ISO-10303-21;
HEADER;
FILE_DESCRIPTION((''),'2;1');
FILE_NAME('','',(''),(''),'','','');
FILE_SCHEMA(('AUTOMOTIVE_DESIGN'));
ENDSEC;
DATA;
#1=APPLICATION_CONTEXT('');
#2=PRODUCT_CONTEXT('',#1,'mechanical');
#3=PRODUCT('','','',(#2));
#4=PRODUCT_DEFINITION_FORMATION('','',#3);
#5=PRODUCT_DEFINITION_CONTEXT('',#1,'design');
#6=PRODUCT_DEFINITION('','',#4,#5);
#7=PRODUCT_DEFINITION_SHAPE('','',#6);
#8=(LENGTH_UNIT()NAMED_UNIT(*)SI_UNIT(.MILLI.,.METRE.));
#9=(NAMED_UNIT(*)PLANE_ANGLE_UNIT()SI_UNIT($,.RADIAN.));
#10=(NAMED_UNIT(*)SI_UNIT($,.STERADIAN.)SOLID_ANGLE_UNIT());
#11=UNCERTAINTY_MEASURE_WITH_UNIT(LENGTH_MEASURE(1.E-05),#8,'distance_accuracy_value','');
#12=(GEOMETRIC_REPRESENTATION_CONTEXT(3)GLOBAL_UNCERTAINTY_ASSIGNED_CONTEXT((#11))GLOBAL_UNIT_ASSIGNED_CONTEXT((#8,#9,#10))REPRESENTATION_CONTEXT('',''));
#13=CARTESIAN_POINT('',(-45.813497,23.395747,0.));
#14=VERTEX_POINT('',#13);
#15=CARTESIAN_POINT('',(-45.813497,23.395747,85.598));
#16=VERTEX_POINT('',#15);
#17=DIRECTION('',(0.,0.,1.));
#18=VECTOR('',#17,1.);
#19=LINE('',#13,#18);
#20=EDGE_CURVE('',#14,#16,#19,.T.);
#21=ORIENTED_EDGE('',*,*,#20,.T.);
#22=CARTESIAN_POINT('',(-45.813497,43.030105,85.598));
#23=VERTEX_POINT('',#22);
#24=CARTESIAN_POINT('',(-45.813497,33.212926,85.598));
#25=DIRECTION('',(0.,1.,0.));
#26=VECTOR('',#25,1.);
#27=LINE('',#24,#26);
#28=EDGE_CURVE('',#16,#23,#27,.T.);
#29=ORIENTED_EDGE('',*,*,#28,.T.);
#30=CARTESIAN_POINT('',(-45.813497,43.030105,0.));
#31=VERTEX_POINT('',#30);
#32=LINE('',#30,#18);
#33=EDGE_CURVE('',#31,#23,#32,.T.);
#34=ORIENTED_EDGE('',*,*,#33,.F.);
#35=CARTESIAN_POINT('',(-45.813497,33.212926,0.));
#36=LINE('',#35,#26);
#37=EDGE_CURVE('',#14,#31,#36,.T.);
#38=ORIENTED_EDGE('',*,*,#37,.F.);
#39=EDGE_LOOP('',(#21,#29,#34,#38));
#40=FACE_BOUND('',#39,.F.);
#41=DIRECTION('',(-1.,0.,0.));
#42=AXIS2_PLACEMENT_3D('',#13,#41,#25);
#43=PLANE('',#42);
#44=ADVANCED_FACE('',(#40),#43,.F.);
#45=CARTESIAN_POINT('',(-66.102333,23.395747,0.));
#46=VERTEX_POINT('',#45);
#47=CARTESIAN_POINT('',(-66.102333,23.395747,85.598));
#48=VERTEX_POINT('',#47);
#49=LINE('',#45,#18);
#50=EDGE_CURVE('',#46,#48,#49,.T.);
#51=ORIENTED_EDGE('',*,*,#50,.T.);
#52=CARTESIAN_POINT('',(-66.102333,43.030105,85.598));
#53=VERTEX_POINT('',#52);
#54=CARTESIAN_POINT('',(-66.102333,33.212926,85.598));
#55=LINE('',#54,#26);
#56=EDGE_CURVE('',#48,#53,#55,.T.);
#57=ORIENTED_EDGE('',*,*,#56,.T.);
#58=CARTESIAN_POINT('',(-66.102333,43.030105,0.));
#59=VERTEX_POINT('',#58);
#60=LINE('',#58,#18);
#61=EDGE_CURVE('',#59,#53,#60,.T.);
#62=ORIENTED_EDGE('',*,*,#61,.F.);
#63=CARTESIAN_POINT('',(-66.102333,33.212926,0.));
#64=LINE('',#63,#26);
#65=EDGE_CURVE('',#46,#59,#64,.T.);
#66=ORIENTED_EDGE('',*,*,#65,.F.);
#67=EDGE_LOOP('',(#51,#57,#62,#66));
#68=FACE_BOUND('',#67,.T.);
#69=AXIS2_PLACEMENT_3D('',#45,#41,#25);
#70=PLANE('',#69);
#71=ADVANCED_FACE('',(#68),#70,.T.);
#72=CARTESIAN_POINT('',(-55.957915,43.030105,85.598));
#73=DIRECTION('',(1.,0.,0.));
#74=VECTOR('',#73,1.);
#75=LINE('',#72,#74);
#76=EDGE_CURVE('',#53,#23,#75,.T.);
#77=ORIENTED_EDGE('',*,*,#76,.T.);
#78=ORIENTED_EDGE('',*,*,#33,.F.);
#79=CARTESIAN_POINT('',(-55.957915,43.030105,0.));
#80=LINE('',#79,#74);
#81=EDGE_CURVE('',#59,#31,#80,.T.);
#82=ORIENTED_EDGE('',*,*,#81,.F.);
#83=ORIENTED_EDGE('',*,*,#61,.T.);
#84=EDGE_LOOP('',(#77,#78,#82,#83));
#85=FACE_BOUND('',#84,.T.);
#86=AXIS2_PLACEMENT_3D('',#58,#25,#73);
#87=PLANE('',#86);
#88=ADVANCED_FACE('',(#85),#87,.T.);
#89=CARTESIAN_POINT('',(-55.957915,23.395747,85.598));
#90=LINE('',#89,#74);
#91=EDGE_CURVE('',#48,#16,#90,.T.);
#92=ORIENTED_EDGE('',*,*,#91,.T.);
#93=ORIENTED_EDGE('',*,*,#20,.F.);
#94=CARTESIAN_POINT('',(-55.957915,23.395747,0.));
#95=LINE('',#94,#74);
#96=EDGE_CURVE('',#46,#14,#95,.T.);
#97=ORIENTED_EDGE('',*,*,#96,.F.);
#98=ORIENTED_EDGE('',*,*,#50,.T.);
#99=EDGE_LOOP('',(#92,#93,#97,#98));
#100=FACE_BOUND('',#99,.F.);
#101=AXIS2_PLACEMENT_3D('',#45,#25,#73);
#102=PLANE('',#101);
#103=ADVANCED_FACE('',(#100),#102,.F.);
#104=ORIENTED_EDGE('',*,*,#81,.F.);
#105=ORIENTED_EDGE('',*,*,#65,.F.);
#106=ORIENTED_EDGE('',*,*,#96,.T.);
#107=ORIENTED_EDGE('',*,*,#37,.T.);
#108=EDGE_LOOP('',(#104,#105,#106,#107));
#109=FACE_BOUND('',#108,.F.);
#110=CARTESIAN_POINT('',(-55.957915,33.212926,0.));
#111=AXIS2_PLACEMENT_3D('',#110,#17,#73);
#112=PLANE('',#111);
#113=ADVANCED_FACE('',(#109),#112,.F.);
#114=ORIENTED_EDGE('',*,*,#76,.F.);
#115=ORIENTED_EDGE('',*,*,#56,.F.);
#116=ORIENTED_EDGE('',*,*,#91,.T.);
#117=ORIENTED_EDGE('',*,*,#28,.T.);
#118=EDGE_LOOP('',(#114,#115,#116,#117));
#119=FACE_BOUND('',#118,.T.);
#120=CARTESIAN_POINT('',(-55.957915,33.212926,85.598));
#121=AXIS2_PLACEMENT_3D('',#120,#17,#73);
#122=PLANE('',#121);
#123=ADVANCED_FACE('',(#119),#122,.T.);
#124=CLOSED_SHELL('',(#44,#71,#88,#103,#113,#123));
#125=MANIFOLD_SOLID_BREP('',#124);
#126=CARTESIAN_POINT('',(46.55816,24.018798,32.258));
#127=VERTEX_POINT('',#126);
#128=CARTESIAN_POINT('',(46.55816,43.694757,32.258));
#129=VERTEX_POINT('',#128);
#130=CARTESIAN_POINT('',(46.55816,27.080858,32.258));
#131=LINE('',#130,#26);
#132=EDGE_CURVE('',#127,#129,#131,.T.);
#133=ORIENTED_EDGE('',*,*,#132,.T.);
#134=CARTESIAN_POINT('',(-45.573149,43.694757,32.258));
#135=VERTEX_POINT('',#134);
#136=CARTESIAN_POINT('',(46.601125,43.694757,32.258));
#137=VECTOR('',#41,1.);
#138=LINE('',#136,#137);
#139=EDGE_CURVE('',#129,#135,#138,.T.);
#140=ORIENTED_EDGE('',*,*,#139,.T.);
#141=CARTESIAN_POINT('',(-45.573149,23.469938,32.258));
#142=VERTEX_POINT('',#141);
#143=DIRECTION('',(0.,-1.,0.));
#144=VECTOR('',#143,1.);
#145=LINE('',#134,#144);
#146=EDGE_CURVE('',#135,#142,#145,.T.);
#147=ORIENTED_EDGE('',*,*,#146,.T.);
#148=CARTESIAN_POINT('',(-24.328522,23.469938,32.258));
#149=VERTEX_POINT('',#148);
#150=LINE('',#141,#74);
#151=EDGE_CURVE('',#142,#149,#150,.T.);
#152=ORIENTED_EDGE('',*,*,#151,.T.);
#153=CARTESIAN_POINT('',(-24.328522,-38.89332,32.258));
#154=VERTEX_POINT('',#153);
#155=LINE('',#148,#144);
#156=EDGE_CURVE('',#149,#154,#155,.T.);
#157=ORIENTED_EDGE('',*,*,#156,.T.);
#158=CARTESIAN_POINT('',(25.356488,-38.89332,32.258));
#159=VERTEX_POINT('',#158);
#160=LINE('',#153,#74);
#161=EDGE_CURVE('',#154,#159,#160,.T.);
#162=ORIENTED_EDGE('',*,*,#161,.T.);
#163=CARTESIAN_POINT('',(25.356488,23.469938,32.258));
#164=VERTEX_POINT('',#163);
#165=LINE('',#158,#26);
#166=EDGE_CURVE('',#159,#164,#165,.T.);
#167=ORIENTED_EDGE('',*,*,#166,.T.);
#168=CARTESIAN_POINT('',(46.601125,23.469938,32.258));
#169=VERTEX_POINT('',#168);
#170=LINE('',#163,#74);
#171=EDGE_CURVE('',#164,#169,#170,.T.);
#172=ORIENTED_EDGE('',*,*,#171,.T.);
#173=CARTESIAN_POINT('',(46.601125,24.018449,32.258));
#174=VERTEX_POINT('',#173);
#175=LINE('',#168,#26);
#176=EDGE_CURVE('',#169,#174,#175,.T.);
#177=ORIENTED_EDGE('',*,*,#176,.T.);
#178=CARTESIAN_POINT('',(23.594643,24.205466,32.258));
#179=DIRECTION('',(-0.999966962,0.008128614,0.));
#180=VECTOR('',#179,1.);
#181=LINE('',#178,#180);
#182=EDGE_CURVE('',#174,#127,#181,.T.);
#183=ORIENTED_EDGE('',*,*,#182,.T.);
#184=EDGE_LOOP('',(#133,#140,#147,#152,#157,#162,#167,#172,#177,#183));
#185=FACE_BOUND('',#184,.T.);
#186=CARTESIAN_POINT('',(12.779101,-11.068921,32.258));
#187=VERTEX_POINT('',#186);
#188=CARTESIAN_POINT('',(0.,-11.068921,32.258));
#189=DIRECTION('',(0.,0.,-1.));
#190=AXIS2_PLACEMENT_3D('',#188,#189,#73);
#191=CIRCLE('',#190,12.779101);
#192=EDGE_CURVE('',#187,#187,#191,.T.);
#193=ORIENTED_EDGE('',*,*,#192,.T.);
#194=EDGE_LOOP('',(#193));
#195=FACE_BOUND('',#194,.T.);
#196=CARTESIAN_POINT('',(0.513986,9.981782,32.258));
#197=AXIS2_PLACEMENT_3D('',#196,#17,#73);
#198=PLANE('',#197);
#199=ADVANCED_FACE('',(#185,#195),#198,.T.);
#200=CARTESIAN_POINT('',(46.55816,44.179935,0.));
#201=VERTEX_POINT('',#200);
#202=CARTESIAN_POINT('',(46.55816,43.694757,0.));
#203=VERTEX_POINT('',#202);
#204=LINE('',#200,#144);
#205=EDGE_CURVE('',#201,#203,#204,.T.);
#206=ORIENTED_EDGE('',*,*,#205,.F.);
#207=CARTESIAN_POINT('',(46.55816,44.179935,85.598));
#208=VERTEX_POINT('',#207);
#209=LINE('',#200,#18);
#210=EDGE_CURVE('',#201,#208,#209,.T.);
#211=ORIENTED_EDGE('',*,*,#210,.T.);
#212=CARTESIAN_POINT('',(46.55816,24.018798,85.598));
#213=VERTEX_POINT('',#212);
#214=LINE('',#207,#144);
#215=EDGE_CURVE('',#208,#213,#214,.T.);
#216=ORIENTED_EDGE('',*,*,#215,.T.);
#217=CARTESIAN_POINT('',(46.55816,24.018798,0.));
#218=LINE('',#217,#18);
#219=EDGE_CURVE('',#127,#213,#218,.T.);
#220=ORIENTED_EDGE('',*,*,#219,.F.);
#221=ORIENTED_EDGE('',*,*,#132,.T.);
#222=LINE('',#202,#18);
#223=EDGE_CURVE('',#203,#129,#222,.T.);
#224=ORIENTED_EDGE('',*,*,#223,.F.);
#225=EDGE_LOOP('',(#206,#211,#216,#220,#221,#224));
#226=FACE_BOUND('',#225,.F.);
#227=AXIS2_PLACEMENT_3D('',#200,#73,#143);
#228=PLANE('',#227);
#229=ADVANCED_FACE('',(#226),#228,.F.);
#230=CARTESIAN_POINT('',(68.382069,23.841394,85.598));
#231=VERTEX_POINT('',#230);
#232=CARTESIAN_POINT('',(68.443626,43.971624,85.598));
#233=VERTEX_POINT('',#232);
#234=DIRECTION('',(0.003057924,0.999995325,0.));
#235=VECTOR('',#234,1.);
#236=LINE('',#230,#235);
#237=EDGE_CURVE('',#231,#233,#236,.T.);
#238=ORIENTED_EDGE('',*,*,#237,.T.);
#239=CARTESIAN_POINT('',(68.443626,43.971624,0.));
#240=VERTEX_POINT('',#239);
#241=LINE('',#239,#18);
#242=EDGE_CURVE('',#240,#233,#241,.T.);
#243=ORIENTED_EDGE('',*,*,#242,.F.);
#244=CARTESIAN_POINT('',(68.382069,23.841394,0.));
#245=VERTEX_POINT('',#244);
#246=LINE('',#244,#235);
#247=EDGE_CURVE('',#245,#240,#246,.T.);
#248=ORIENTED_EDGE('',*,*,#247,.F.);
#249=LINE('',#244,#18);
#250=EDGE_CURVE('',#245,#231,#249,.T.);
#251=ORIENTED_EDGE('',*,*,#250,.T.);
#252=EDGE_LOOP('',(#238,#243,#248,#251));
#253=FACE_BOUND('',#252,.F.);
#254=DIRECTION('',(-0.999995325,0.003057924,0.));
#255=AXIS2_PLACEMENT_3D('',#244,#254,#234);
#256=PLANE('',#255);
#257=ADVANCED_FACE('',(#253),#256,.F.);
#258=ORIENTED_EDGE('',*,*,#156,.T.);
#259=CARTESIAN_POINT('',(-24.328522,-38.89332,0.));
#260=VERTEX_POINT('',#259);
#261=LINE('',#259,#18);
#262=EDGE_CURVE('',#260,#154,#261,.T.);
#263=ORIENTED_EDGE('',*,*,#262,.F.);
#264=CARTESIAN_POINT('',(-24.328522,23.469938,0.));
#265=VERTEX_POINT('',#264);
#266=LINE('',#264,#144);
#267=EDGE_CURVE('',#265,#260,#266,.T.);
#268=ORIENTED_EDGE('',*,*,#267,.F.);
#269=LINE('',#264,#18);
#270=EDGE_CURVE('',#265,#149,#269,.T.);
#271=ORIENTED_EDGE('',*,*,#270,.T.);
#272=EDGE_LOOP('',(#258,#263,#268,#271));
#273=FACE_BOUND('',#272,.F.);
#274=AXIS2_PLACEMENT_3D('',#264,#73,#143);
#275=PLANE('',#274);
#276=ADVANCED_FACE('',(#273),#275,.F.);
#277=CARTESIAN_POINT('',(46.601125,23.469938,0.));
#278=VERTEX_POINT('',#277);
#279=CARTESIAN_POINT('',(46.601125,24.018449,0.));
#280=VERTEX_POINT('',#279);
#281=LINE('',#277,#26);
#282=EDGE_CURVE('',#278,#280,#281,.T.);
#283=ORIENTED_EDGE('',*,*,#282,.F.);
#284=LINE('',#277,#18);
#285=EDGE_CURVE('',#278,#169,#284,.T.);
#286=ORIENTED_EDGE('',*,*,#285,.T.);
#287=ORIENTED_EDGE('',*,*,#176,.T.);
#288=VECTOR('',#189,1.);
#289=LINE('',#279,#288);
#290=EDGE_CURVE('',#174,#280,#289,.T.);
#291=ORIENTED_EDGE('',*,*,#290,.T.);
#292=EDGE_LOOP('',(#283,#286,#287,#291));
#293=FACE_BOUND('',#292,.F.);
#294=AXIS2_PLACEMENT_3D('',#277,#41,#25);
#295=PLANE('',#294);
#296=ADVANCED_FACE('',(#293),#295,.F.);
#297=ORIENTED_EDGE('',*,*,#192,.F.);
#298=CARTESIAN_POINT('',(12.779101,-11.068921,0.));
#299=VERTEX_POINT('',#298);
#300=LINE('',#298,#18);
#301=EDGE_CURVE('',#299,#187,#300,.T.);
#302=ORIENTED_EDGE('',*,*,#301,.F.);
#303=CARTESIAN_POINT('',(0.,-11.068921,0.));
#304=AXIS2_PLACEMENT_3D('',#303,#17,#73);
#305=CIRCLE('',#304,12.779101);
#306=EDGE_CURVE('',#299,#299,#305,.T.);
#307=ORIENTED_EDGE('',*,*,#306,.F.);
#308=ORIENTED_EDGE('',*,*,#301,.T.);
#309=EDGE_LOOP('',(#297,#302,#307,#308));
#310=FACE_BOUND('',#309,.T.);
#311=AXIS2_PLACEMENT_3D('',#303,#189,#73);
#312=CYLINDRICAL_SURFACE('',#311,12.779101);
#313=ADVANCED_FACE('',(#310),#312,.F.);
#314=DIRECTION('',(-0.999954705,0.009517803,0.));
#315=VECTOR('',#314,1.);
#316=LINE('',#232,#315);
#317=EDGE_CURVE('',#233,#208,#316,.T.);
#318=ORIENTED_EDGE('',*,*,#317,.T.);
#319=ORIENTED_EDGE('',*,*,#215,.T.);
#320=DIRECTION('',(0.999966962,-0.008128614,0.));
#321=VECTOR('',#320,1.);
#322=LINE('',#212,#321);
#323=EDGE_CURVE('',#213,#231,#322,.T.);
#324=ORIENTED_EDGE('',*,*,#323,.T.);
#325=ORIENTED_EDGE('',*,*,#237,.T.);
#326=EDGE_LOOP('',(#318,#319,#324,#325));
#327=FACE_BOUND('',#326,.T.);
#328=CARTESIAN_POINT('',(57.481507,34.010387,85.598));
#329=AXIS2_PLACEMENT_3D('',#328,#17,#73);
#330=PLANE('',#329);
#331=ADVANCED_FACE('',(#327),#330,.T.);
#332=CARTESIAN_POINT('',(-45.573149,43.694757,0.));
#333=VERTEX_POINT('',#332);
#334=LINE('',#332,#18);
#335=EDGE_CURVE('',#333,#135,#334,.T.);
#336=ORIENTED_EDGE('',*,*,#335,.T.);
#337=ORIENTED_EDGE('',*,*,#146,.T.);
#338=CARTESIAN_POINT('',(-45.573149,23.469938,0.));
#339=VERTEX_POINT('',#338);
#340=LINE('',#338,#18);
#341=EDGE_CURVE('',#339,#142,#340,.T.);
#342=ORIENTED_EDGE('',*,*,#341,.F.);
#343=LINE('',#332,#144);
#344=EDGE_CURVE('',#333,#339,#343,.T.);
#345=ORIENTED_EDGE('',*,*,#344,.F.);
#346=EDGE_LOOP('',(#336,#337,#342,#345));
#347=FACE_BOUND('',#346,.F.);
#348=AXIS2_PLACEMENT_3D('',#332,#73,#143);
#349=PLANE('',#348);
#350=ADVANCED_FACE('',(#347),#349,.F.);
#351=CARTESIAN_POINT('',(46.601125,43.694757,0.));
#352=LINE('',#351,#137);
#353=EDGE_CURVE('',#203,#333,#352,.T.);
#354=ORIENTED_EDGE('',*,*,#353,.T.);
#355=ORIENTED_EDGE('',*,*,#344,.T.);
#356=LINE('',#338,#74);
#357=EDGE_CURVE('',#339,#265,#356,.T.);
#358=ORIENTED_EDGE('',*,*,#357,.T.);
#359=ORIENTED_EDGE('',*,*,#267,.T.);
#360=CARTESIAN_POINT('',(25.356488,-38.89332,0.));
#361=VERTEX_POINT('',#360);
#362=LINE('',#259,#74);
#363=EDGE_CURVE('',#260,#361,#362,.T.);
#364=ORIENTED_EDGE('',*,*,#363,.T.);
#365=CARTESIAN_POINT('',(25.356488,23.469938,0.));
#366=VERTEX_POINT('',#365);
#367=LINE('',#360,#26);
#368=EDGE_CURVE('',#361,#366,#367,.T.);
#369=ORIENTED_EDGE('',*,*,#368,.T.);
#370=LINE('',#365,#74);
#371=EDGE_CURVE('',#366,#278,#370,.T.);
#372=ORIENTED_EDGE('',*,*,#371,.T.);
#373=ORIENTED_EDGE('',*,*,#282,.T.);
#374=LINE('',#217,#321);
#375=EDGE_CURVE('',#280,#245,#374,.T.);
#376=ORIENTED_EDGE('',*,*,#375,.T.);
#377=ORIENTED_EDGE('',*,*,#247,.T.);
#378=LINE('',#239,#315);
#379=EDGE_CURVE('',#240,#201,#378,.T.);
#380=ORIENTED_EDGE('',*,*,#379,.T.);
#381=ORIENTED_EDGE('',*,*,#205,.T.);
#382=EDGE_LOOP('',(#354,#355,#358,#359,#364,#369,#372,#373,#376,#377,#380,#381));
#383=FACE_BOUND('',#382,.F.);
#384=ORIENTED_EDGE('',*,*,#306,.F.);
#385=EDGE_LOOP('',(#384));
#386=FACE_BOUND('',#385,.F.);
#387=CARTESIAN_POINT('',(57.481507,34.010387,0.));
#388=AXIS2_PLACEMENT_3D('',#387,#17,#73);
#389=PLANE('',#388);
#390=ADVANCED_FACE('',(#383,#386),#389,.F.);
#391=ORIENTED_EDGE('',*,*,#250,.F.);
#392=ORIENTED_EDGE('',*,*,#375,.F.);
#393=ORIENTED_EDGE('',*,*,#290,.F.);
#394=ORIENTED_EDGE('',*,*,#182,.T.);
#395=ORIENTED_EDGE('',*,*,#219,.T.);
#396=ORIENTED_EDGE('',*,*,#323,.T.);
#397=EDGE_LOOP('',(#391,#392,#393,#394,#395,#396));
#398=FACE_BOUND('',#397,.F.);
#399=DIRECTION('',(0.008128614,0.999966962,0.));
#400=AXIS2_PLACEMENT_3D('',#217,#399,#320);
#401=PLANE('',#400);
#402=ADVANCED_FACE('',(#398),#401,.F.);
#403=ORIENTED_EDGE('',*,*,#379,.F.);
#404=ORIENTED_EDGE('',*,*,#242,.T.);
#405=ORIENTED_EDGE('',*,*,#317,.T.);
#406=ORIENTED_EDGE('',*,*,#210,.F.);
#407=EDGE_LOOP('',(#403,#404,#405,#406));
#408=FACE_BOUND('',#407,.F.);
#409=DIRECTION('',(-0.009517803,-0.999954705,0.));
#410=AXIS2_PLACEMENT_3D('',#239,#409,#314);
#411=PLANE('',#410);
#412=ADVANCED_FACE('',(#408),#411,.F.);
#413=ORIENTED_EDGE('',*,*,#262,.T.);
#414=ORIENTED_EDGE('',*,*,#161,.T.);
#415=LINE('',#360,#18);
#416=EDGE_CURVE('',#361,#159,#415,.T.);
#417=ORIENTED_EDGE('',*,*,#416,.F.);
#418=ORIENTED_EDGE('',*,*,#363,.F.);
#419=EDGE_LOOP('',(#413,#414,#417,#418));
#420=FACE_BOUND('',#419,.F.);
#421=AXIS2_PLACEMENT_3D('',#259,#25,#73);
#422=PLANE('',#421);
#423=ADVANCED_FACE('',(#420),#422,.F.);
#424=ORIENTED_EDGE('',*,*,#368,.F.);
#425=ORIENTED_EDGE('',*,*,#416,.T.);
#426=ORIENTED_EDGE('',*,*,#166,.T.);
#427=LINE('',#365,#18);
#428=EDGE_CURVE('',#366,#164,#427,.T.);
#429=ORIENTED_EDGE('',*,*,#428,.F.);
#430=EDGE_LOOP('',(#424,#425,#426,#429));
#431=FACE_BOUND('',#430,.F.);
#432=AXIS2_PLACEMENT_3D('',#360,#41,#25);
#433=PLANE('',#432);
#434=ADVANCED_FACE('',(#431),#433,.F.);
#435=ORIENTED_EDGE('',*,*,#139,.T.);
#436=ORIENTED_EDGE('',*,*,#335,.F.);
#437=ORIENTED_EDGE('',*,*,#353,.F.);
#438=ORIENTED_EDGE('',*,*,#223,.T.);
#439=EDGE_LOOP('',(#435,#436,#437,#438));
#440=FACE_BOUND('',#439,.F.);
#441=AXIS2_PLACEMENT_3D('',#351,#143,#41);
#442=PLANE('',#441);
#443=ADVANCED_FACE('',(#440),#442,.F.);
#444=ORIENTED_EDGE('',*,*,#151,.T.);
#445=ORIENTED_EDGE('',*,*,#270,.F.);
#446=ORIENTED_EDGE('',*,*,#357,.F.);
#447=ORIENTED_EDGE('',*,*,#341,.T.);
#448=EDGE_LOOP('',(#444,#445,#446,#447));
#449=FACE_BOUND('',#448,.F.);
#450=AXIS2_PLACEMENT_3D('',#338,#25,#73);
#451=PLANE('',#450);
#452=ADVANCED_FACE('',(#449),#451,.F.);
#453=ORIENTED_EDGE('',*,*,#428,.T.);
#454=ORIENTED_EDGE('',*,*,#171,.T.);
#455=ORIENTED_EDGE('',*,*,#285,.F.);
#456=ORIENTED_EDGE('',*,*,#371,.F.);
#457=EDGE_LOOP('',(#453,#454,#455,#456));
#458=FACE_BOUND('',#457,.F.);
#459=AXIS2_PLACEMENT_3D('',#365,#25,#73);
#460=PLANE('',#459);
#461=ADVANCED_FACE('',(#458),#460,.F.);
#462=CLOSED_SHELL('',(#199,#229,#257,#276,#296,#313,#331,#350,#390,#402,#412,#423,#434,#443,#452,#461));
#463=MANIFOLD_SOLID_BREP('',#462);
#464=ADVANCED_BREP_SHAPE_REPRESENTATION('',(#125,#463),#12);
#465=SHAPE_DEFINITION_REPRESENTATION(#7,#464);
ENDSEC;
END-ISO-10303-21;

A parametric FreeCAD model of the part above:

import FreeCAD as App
import Part
import Sketcher
from FreeCAD import Vector
Q = App.Units.Quantity

doc = App.newDocument("Part")
body = doc.addObject("PartDesign::Body", "Body")
body.AllowCompound = True

# Sketch on XY plane
sketch1 = doc.addObject("Sketcher::SketchObject", "Sketch")
body.addObject(sketch1)
sketch1.AttachmentSupport = (doc.XY_Plane, [""])
sketch1.MapMode = "FlatFace"
sketch1.addGeometry([
    Part.LineSegment(Vector(-24.328522, 23.469938, 0), Vector(-24.328522, -38.89332, 0)),  # 0
    Part.LineSegment(Vector(-24.328522, -38.89332, 0), Vector(25.356488, -38.89332, 0)),  # 1
    Part.LineSegment(Vector(25.356488, -38.89332, 0), Vector(25.356488, 23.469938, 0)),  # 2
    Part.LineSegment(Vector(25.356488, 23.469938, 0), Vector(46.601125, 23.469938, 0)),  # 3
    Part.LineSegment(Vector(46.601125, 23.469938, 0), Vector(46.601125, 43.694757, 0)),  # 4
    Part.LineSegment(Vector(46.601125, 43.694757, 0), Vector(-45.573149, 43.694757, 0)),  # 5
    Part.LineSegment(Vector(-45.573149, 43.694757, 0), Vector(-45.573149, 23.469938, 0)),  # 6
    Part.LineSegment(Vector(-45.573149, 23.469938, 0), Vector(-24.328522, 23.469938, 0)),  # 7
], False)
sketch1.addConstraint([
    Sketcher.Constraint("Coincident", 0, 2, 1, 1),
    Sketcher.Constraint("Coincident", 1, 2, 2, 1),
    Sketcher.Constraint("Coincident", 2, 2, 3, 1),
    Sketcher.Constraint("Coincident", 3, 2, 4, 1),
    Sketcher.Constraint("Coincident", 4, 2, 5, 1),
    Sketcher.Constraint("Coincident", 5, 2, 6, 1),
    Sketcher.Constraint("Coincident", 6, 2, 7, 1),
    Sketcher.Constraint("Coincident", 7, 2, 0, 1),
    Sketcher.Constraint("Vertical", 0),
    Sketcher.Constraint("Horizontal", 1),
    Sketcher.Constraint("Vertical", 2),
    Sketcher.Constraint("Horizontal", 3),
    Sketcher.Constraint("Vertical", 4),
    Sketcher.Constraint("Horizontal", 5),
    Sketcher.Constraint("Vertical", 6),
    Sketcher.Constraint("Horizontal", 7),
    Sketcher.Constraint("Horizontal", 3, 2, 6, 2),
    Sketcher.Constraint("DistanceX", 1, 1, 1, 2, 49.68501),
    Sketcher.Constraint("DistanceY", 0, 2, 0, 1, 62.363258),
    Sketcher.Constraint("DistanceY", 4, 1, 4, 2, 20.224819),
    Sketcher.Constraint("DistanceX", 3, 1, 3, 2, 21.244637),
    Sketcher.Constraint("DistanceX", 5, 2, 5, 1, 92.174274),
    Sketcher.Constraint("DistanceX", 0, 2, -1, 1, 24.328522),
    Sketcher.Constraint("DistanceY", 0, 2, -1, 1, 38.89332),
])
pad1 = doc.addObject("PartDesign::Pad", "Pad")
body.addObject(pad1)
pad1.Profile = sketch1
pad1.Length = Q("1.27 in")

# Sketch on XY plane
sketch2 = doc.addObject("Sketcher::SketchObject", "Sketch001")
body.addObject(sketch2)
sketch2.AttachmentSupport = (doc.XY_Plane, [""])
sketch2.MapMode = "FlatFace"
sketch2.addGeometry([
    Part.LineSegment(Vector(-66.102333, 43.030105, 0), Vector(-66.102333, 23.395747, 0)),  # 0
    Part.LineSegment(Vector(-66.102333, 23.395747, 0), Vector(-45.813497, 23.395747, 0)),  # 1
    Part.LineSegment(Vector(-45.813497, 23.395747, 0), Vector(-45.813497, 43.030105, 0)),  # 2
    Part.LineSegment(Vector(-45.813497, 43.030105, 0), Vector(-66.102333, 43.030105, 0)),  # 3
    Part.LineSegment(Vector(68.443626, 43.971624, 0), Vector(46.55816, 44.179935, 0)),  # 4
    Part.LineSegment(Vector(46.55816, 44.179935, 0), Vector(46.55816, 24.018798, 0)),  # 5
    Part.LineSegment(Vector(46.55816, 24.018798, 0), Vector(68.382069, 23.841394, 0)),  # 6
    Part.LineSegment(Vector(68.382069, 23.841394, 0), Vector(68.443626, 43.971624, 0)),  # 7
], False)
sketch2.addConstraint([
    Sketcher.Constraint("Coincident", 0, 2, 1, 1),
    Sketcher.Constraint("Coincident", 1, 2, 2, 1),
    Sketcher.Constraint("Coincident", 2, 2, 3, 1),
    Sketcher.Constraint("Coincident", 3, 2, 0, 1),
    Sketcher.Constraint("Coincident", 4, 2, 5, 1),
    Sketcher.Constraint("Coincident", 5, 2, 6, 1),
    Sketcher.Constraint("Coincident", 6, 2, 7, 1),
    Sketcher.Constraint("Coincident", 7, 2, 4, 1),
    Sketcher.Constraint("Vertical", 0),
    Sketcher.Constraint("Horizontal", 1),
    Sketcher.Constraint("Vertical", 2),
    Sketcher.Constraint("Horizontal", 3),
    Sketcher.Constraint("Vertical", 5),
    Sketcher.Constraint("DistanceY", 0, 2, 0, 1, 19.634359),
    Sketcher.Constraint("DistanceY", -1, 1, 5, 2, 24.018798),
    Sketcher.Constraint("DistanceX", 0, 2, 6, 2, 134.484402),
    Sketcher.Constraint("Distance", 6, 21.82463),
    Sketcher.Constraint("DistanceX", 1, 1, 1, 2, 20.288836),
    Sketcher.Constraint("DistanceY", 5, 2, 5, 1, 20.161137),
    Sketcher.Constraint("DistanceX", -1, 1, 4, 2, 46.55816),
    Sketcher.Constraint("DistanceX", -1, 1, 6, 2, 68.382069),
    Sketcher.Constraint("DistanceY", 2, 2, 4, 2, 1.14983),
    Sketcher.Constraint("DistanceY", 6, 2, 7, 2, 20.13023),
    Sketcher.Constraint("Distance", 4, 21.886457),
])
pad2 = doc.addObject("PartDesign::Pad", "Pad001")
body.addObject(pad2)
pad2.Profile = sketch2
pad2.Length = Q("3.37 in")

# Sketch on XY plane
sketch3 = doc.addObject("Sketcher::SketchObject", "Sketch002")
body.addObject(sketch3)
sketch3.AttachmentSupport = (doc.XY_Plane, [""])
sketch3.MapMode = "FlatFace"
sketch3.addGeometry(Part.Circle(Vector(0, -11.068921, 0), Vector(0, 0, 1), 12.779101), False)
sketch3.addConstraint([
    Sketcher.Constraint("PointOnObject", 0, 3, -2),
    Sketcher.Constraint("Diameter", 0, 25.558202),
    Sketcher.Constraint("DistanceY", 0, 3, -1, 1, 11.068921),
])
pocket1 = doc.addObject("PartDesign::Pocket", "Pocket")
body.addObject(pocket1)
pocket1.Profile = sketch3
pocket1.Length = Q("2.05 in")
pocket1.Reversed = True

doc.recompute()
